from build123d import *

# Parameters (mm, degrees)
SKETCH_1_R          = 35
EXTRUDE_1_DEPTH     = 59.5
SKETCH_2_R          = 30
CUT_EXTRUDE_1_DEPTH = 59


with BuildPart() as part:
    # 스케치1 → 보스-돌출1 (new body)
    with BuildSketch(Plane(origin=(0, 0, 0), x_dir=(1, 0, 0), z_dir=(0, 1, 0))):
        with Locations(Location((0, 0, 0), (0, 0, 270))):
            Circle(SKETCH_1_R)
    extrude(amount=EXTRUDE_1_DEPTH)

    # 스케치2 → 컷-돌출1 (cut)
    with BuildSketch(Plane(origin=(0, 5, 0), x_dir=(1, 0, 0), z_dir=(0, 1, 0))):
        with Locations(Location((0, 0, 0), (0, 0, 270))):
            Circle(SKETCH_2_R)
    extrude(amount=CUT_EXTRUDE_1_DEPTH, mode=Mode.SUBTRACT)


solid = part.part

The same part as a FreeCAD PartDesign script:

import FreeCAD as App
import Part
import Sketcher
Q = App.Units.Quantity

doc = App.newDocument("Part")
body = doc.addObject("PartDesign::Body", "Body")

# Sketch on XZ plane
sketch1 = body.newObject("Sketcher::SketchObject", "Sketch")
sketch1.AttachmentSupport = (doc.getObject("XZ_Plane"), [""])
sketch1.MapMode = "FlatFace"
sketch1.addGeometry(Part.Circle(App.Vector(0, 0, 0), App.Vector(0, 0, 1), 35), False)
sketch1.addConstraint(Sketcher.Constraint("Coincident", 0, 3, -1, 1))
sketch1.addConstraint(Sketcher.Constraint("Diameter", 0, Q("70 mm")))
pad1 = body.newObject("PartDesign::Pad", "Pad")
pad1.Profile = sketch1
pad1.Length = 59.5
pad1.Reversed = True

# Sketch on XZ plane
sketch2 = body.newObject("Sketcher::SketchObject", "Sketch001")
sketch2.AttachmentSupport = (doc.getObject("XZ_Plane"), [""])
sketch2.MapMode = "FlatFace"
sketch2.AttachmentOffset = App.Placement(App.Vector(0, 0, -5), App.Rotation())
sketch2.addGeometry(Part.Circle(App.Vector(0, 0, 0), App.Vector(0, 0, 1), 30), False)
sketch2.addConstraint(Sketcher.Constraint("Coincident", 0, 3, -1, 1))
sketch2.addConstraint(Sketcher.Constraint("Diameter", 0, Q("60 mm")))
pocket1 = body.newObject("PartDesign::Pocket", "Pocket")
pocket1.Profile = sketch2
pocket1.Length = 59

doc.recompute()
